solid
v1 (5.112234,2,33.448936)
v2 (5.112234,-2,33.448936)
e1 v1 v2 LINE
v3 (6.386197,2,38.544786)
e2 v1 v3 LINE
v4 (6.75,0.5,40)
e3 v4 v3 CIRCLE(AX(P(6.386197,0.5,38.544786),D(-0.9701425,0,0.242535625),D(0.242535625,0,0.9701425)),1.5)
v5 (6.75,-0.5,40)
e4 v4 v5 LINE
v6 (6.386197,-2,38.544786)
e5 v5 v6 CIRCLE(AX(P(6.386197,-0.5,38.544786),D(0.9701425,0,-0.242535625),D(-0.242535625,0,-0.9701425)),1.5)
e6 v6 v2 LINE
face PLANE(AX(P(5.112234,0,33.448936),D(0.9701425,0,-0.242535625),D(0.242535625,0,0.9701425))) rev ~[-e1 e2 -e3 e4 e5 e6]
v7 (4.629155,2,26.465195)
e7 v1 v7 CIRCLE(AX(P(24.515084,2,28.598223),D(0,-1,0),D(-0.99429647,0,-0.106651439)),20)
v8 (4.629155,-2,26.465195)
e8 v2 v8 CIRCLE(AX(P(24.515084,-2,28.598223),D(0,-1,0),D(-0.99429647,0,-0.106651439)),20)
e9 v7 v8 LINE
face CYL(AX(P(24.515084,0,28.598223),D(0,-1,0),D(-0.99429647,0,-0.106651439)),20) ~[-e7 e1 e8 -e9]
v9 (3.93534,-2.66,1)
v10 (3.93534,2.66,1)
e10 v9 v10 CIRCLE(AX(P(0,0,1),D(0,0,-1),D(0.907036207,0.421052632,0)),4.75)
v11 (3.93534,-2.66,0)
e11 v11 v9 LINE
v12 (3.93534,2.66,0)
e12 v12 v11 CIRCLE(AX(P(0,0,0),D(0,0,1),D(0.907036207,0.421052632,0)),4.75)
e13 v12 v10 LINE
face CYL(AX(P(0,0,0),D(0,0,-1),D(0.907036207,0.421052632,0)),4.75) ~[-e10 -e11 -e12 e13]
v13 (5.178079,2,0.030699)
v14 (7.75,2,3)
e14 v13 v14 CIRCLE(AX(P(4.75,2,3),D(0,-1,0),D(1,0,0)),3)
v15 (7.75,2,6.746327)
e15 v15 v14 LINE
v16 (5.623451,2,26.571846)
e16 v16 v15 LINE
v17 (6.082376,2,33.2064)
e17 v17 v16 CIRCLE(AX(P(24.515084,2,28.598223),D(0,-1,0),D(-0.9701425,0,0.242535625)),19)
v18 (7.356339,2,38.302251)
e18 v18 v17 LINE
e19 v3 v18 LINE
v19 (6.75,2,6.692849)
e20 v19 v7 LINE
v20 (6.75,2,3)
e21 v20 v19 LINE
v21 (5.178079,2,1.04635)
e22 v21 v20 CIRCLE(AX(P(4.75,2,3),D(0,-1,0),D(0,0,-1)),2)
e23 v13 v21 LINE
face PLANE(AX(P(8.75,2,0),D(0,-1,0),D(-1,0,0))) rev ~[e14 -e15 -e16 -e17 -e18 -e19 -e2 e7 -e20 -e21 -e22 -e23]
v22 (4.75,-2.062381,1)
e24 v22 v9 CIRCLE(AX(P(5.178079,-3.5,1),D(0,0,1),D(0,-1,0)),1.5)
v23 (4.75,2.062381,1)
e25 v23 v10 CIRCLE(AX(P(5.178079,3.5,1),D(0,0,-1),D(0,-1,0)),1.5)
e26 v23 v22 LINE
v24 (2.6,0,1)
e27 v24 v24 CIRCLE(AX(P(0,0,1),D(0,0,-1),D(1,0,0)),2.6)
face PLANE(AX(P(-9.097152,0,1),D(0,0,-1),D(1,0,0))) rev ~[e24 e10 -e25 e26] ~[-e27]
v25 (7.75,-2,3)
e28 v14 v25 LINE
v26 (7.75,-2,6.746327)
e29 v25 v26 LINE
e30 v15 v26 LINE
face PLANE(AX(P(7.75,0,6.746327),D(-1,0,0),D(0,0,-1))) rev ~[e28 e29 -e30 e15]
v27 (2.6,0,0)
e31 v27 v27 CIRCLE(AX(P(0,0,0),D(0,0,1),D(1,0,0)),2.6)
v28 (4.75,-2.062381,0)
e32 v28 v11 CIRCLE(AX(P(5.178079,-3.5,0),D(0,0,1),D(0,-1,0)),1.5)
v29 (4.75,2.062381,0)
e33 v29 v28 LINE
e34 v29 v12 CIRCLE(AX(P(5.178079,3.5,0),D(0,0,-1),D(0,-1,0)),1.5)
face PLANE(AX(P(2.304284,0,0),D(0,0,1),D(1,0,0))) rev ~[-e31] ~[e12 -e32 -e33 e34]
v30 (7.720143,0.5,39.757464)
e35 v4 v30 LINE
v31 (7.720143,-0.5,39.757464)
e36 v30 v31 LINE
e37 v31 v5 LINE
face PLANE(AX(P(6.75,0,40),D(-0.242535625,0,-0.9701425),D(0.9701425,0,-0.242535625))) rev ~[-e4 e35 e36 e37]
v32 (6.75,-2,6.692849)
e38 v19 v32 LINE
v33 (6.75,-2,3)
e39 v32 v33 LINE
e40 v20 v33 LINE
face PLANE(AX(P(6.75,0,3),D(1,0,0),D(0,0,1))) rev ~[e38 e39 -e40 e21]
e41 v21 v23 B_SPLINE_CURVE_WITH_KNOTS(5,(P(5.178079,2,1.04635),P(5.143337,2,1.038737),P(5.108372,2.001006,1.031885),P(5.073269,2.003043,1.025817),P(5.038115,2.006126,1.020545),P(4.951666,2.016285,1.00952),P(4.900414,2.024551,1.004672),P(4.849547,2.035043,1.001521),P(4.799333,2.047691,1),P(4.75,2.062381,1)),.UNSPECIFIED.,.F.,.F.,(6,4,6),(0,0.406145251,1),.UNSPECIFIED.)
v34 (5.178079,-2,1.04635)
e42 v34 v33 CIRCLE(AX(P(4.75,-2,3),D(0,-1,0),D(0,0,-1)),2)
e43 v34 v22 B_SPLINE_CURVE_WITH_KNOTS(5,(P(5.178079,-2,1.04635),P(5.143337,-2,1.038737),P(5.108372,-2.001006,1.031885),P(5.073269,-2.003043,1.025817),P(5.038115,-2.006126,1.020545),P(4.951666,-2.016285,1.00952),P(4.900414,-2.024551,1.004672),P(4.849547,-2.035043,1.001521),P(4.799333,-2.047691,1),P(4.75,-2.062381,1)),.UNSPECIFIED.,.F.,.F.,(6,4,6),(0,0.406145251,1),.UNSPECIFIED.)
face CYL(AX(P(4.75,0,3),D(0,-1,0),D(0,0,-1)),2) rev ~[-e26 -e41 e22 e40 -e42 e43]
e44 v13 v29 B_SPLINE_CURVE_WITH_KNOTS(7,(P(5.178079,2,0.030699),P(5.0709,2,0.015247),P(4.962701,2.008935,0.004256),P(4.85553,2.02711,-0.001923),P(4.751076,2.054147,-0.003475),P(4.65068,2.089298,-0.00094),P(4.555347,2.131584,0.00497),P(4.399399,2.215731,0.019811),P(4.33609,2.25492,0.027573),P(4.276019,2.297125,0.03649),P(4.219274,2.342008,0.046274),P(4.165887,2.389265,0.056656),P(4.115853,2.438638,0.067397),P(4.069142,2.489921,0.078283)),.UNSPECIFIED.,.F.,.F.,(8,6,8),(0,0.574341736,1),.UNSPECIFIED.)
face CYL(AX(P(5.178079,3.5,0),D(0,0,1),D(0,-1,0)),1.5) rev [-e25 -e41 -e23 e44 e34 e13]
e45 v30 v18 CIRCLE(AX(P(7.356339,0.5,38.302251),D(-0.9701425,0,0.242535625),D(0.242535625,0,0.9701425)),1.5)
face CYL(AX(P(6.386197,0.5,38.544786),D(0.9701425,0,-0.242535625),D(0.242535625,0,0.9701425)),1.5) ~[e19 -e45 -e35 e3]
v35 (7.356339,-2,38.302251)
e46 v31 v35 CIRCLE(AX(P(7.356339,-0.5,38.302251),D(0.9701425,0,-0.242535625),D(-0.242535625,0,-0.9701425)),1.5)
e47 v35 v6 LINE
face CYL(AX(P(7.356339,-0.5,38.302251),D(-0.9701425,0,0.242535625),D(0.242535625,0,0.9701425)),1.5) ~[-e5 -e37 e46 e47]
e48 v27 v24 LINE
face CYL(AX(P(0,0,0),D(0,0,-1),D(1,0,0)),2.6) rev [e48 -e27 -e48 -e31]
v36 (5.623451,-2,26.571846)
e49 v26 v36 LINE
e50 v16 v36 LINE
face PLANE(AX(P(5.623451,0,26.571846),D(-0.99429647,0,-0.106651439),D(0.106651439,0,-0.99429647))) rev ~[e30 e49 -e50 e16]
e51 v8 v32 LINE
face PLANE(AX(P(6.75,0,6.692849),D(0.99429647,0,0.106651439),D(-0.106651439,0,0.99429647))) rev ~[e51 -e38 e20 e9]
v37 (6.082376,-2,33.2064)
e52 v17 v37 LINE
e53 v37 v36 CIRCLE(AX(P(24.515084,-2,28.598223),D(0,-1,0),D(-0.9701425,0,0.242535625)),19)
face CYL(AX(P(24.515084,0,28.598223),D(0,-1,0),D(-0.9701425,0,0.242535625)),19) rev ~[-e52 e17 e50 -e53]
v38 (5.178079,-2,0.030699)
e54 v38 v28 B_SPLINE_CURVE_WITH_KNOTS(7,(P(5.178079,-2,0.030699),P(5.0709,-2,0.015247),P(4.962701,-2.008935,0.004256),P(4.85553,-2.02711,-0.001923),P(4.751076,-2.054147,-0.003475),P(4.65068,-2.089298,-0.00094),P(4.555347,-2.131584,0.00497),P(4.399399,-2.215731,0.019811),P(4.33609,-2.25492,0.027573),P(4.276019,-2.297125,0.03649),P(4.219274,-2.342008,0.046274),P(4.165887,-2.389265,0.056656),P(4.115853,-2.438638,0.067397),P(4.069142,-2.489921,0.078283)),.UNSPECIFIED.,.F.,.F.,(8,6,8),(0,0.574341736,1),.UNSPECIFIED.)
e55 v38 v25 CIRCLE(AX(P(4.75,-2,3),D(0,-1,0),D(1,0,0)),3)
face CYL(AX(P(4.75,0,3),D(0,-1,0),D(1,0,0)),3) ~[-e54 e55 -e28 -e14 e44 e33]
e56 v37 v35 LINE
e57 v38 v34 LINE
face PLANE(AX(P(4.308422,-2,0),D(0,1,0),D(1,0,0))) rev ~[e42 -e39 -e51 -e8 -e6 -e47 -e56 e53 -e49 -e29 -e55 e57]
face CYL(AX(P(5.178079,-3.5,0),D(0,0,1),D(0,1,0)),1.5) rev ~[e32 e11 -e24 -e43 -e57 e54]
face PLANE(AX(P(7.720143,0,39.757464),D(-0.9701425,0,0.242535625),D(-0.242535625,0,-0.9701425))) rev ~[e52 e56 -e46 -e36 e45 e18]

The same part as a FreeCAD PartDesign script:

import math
import FreeCAD as App
import Part
import Sketcher
from FreeCAD import Vector
Q = App.Units.Quantity


def edges_at(feature, points):
    """Names of the edges that pass closest to the given points."""
    edges = feature.Shape.Edges
    near = lambda p: min(range(len(edges)), key=lambda i: edges[i].distToShape(Part.Vertex(*p))[0])
    return sorted({f"Edge{near(p) + 1}" for p in points})

doc = App.newDocument("Part")
body = doc.addObject("PartDesign::Body", "Body")

sketch1 = doc.addObject("Sketcher::SketchObject", "Sketch")
body.addObject(sketch1)
sketch1.AttachmentSupport = (doc.XY_Plane, [""])
sketch1.MapMode = "FlatFace"
sketch1.addGeometry(Part.LineSegment(Vector(8.75, 2, 0), Vector(4.308422, 2, 0)), False)
sketch1.addGeometry(Part.ArcOfCircle(Part.Circle(Vector(0, 0, 0), Vector(0, 0, 1), 4.75), math.radians(24.901062), math.radians(335.098938)), False)
sketch1.addGeometry(Part.LineSegment(Vector(4.308422, -2, 0), Vector(8.75, -2, 0)), False)
sketch1.addGeometry(Part.LineSegment(Vector(8.75, -2, 0), Vector(8.75, 2, 0)), False)
sketch1.addGeometry(Part.Circle(Vector(0, 0, 0), Vector(0, 0, 1), 2.6), False)
sketch1.addConstraint(Sketcher.Constraint("Coincident", 0, 2, 1, 1))
sketch1.addConstraint(Sketcher.Constraint("Coincident", 1, 2, 2, 1))
sketch1.addConstraint(Sketcher.Constraint("Coincident", 2, 2, 3, 1))
sketch1.addConstraint(Sketcher.Constraint("Coincident", 3, 2, 0, 1))
sketch1.addConstraint(Sketcher.Constraint("Horizontal", 0))
sketch1.addConstraint(Sketcher.Constraint("Horizontal", 2))
sketch1.addConstraint(Sketcher.Constraint("Vertical", 3))
sketch1.addConstraint(Sketcher.Constraint("Coincident", 1, 3, -1, 1))
sketch1.addConstraint(Sketcher.Constraint("Coincident", 4, 3, -1, 1))
sketch1.addConstraint(Sketcher.Constraint("Vertical", 0, 2, 1, 2))
sketch1.addConstraint(Sketcher.Constraint("Diameter", 4, Q("5.2 mm")))
sketch1.addConstraint(Sketcher.Constraint("DistanceY", 3, 1, 3, 2, Q("4 mm")))
sketch1.addConstraint(Sketcher.Constraint("Radius", 1, Q("4.75 mm")))
sketch1.addConstraint(Sketcher.Constraint("DistanceX", -1, 1, 2, 2, Q("8.75 mm")))
pad1 = doc.addObject("PartDesign::Pad", "Pad")
body.addObject(pad1)
pad1.Profile = sketch1
pad1.Length = 40

sketch2 = doc.addObject("Sketcher::SketchObject", "Sketch001")
body.addObject(sketch2)
sketch2.AttachmentSupport = (doc.XZ_Plane, [""])
sketch2.MapMode = "FlatFace"
sketch2.addGeometry(Part.LineSegment(Vector(7.720142, 39.757464, 0), Vector(6.082376, 33.2064, 0)), False)
sketch2.addGeometry(Part.ArcOfCircle(Part.Circle(Vector(24.515084, 28.598223, 0), Vector(0, 0, 1), 19), math.radians(165.963757), math.radians(186.122321)), False)
sketch2.addGeometry(Part.LineSegment(Vector(5.623451, 26.571846, 0), Vector(7.75, 6.746327, 0)), False)
sketch2.addGeometry(Part.LineSegment(Vector(7.75, 6.746327, 0), Vector(7.75, 3, 0)), False)
sketch2.addGeometry(Part.ArcOfCircle(Part.Circle(Vector(4.75, 3, 0), Vector(0, 0, 1), 3), math.radians(-90), math.radians(0)), False)
sketch2.addGeometry(Part.LineSegment(Vector(4.75, 0, 0), Vector(-9.097152, 0, 0)), False)
sketch2.addGeometry(Part.LineSegment(Vector(-9.097152, 0, 0), Vector(-9.097152, -6.057194, 0)), False)
sketch2.addGeometry(Part.LineSegment(Vector(-9.097152, -6.057194, 0), Vector(12.389867, -5.090165, 0)), False)
sketch2.addGeometry(Part.LineSegment(Vector(12.389867, -5.090165, 0), Vector(10.24794, 42.502638, 0)), False)
sketch2.addGeometry(Part.LineSegment(Vector(10.24794, 42.502638, 0), Vector(5.623194, 43.910168, 0)), False)
sketch2.addGeometry(Part.LineSegment(Vector(5.623194, 43.910168, 0), Vector(6.75, 40, 0)), False)
sketch2.addGeometry(Part.LineSegment(Vector(6.75, 40, 0), Vector(7.720142, 39.757464, 0)), False)
sketch2.addGeometry(Part.LineSegment(Vector(-9.097152, 1, 0), Vector(4.75, 1, 0)), False)
sketch2.addGeometry(Part.ArcOfCircle(Part.Circle(Vector(4.75, 3, 0), Vector(0, 0, 1), 2), math.radians(-90), math.radians(0)), False)
sketch2.addGeometry(Part.LineSegment(Vector(6.75, 3, 0), Vector(6.75, 6.692849, 0)), False)
sketch2.addGeometry(Part.LineSegment(Vector(6.75, 6.692849, 0), Vector(4.629155, 26.465195, 0)), False)
sketch2.addGeometry(Part.ArcOfCircle(Part.Circle(Vector(24.515084, 28.598223, 0), Vector(0, 0, 1), 20), math.radians(165.963757), math.radians(186.122321)), False)
sketch2.addGeometry(Part.LineSegment(Vector(5.112234, 33.448936, 0), Vector(6.75, 40, 0)), False)
sketch2.addGeometry(Part.LineSegment(Vector(6.75, 40, 0), Vector(-4.48421, 43.910168, 0)), False)
sketch2.addGeometry(Part.LineSegment(Vector(-4.48421, 43.910168, 0), Vector(-11.351329, 32.936066, 0)), False)
sketch2.addGeometry(Part.LineSegment(Vector(-11.351329, 32.936066, 0), Vector(-9.097152, 1, 0)), False)
sketch2.addConstraint(Sketcher.Constraint("Coincident", 0, 2, 1, 1))
sketch2.addConstraint(Sketcher.Constraint("Coincident", 1, 2, 2, 1))
sketch2.addConstraint(Sketcher.Constraint("Coincident", 2, 2, 3, 1))
sketch2.addConstraint(Sketcher.Constraint("Coincident", 3, 2, 4, 2))
sketch2.addConstraint(Sketcher.Constraint("Coincident", 4, 1, 5, 1))
sketch2.addConstraint(Sketcher.Constraint("Coincident", 5, 2, 6, 1))
sketch2.addConstraint(Sketcher.Constraint("Coincident", 6, 2, 7, 1))
sketch2.addConstraint(Sketcher.Constraint("Coincident", 7, 2, 8, 1))
sketch2.addConstraint(Sketcher.Constraint("Coincident", 8, 2, 9, 1))
sketch2.addConstraint(Sketcher.Constraint("Coincident", 9, 2, 10, 1))
sketch2.addConstraint(Sketcher.Constraint("Coincident", 10, 2, 11, 1))
sketch2.addConstraint(Sketcher.Constraint("Coincident", 11, 2, 0, 1))
sketch2.addConstraint(Sketcher.Constraint("Coincident", 12, 2, 13, 1))
sketch2.addConstraint(Sketcher.Constraint("Coincident", 13, 2, 14, 1))
sketch2.addConstraint(Sketcher.Constraint("Coincident", 14, 2, 15, 1))
sketch2.addConstraint(Sketcher.Constraint("Coincident", 15, 2, 16, 2))
sketch2.addConstraint(Sketcher.Constraint("Coincident", 16, 1, 17, 1))
sketch2.addConstraint(Sketcher.Constraint("Coincident", 17, 2, 18, 1))
sketch2.addConstraint(Sketcher.Constraint("Coincident", 18, 2, 19, 1))
sketch2.addConstraint(Sketcher.Constraint("Coincident", 19, 2, 20, 1))
sketch2.addConstraint(Sketcher.Constraint("Coincident", 20, 2, 12, 1))
sketch2.addConstraint(Sketcher.Constraint("Vertical", 3))
sketch2.addConstraint(Sketcher.Constraint("Horizontal", 5))
sketch2.addConstraint(Sketcher.Constraint("Vertical", 6))
sketch2.addConstraint(Sketcher.Constraint("Horizontal", 12))
sketch2.addConstraint(Sketcher.Constraint("Vertical", 14))
sketch2.addConstraint(Sketcher.Constraint("Coincident", 13, 3, 4, 3))
sketch2.addConstraint(Sketcher.Constraint("Coincident", 16, 3, 1, 3))
sketch2.addConstraint(Sketcher.Constraint("Coincident", 17, 2, 10, 2))
sketch2.addConstraint(Sketcher.Constraint("PointOnObject", 4, 1, -1))
sketch2.addConstraint(Sketcher.Constraint("Radius", 1, Q("19 mm")))
sketch2.addConstraint(Sketcher.Constraint("Radius", 4, Q("3 mm")))
sketch2.addConstraint(Sketcher.Constraint("Radius", 13, Q("2 mm")))
sketch2.addConstraint(Sketcher.Constraint("Radius", 16, Q("20 mm")))
sketch2.addConstraint(Sketcher.Constraint("Distance", 11, Q("1 mm")))
sketch2.addConstraint(Sketcher.Constraint("DistanceY", -1, 1, 3, 2, Q("3 mm")))
sketch2.addConstraint(Sketcher.Constraint("DistanceY", -1, 1, 10, 2, Q("40 mm")))
sketch2.addConstraint(Sketcher.Constraint("DistanceY", -1, 1, 13, 2, Q("3 mm")))
sketch2.addConstraint(Sketcher.Constraint("DistanceX", 4, 1, 3, 2, Q("3 mm")))
sketch2.addConstraint(Sketcher.Constraint("DistanceX", 12, 2, 3, 2, Q("3 mm")))
sketch2.addConstraint(Sketcher.Constraint("DistanceX", -1, 1, 4, 3, Q("4.75 mm")))
sketch2.addConstraint(Sketcher.Constraint("DistanceX", -1, 1, 10, 2, Q("6.75 mm")))
sketch2.addConstraint(Sketcher.Constraint("DistanceY", 14, 1, 14, 2, Q("3.692849 mm")))
sketch2.addConstraint(Sketcher.Constraint("DistanceY", -1, 1, 0, 2, Q("33.2064 mm")))
sketch2.addConstraint(Sketcher.Constraint("DistanceY", 19, 2, 18, 2, Q("10.974102 mm")))
sketch2.addConstraint(Sketcher.Constraint("Distance", 7, Q("21.50877 mm")))
sketch2.addConstraint(Sketcher.Constraint("Distance", 10, Q("4.069288 mm")))
sketch2.addConstraint(Sketcher.Constraint("DistanceX", 5, 2, 5, 1, Q("13.847152 mm")))
sketch2.addConstraint(Sketcher.Constraint("DistanceX", 12, 1, 12, 2, Q("13.847152 mm")))
sketch2.addConstraint(Sketcher.Constraint("DistanceY", 3, 2, 3, 1, Q("3.746327 mm")))
sketch2.addConstraint(Sketcher.Constraint("DistanceY", 6, 2, 6, 1, Q("6.057194 mm")))
sketch2.addConstraint(Sketcher.Constraint("DistanceX", -1, 1, 1, 2, Q("5.623451 mm")))
sketch2.addConstraint(Sketcher.Constraint("DistanceX", -1, 1, 8, 2, Q("10.24794 mm")))
sketch2.addConstraint(Sketcher.Constraint("DistanceY", -1, 1, 9, 2, Q("43.910168 mm")))
sketch2.addConstraint(Sketcher.Constraint("DistanceX", 18, 2, -1, 1, Q("4.48421 mm")))
sketch2.addConstraint(Sketcher.Constraint("DistanceY", -1, 1, 18, 2, Q("43.910168 mm")))
sketch2.addConstraint(Sketcher.Constraint("DistanceX", 19, 2, -1, 1, Q("11.351329 mm")))
sketch2.addConstraint(Sketcher.Constraint("DistanceY", 2, 2, 1, 2, Q("19.825519 mm")))
sketch2.addConstraint(Sketcher.Constraint("DistanceY", 1, 2, 8, 2, Q("15.930792 mm")))
sketch2.addConstraint(Sketcher.Constraint("DistanceX", 9, 2, 16, 3, Q("18.89189 mm")))
sketch2.addConstraint(Sketcher.Constraint("DistanceX", 9, 2, 11, 2, Q("2.096949 mm")))
sketch2.addConstraint(Sketcher.Constraint("DistanceY", 15, 2, 1, 2, Q("0.106651 mm")))
sketch2.addConstraint(Sketcher.Constraint("DistanceX", 16, 1, 11, 2, Q("2.607909 mm")))
sketch2.addConstraint(Sketcher.Constraint("Distance", 8, Q("47.640978 mm")))
pocket1 = doc.addObject("PartDesign::Pocket", "Pocket")
body.addObject(pocket1)
pocket1.Profile = sketch2
pocket1.Length = 25
pocket1.Midplane = True
doc.recompute()

fillet = doc.addObject("PartDesign::Fillet", "Fillet")
body.addObject(fillet)
fillet.Base = (pocket1, edges_at(pocket1, [(7.235, -2, 39.879)]))
fillet.Radius = 1.5
doc.recompute()

fillet2 = doc.addObject("PartDesign::Fillet", "Fillet001")
body.addObject(fillet2)
fillet2.Base = (fillet, edges_at(fillet, [(7.235, 2, 39.879)]))
fillet2.Radius = 1.5
doc.recompute()

fillet3 = doc.addObject("PartDesign::Fillet", "Fillet002")
body.addObject(fillet3)
fillet3.Base = (fillet2, edges_at(fillet2, [(4.308, -2, 0.5)]))
fillet3.Radius = 1.5
doc.recompute()

fillet4 = doc.addObject("PartDesign::Fillet", "Fillet003")
body.addObject(fillet4)
fillet4.Base = (fillet3, edges_at(fillet3, [(4.308, 2, 0.5)]))
fillet4.Radius = 1.5

doc.recompute()
